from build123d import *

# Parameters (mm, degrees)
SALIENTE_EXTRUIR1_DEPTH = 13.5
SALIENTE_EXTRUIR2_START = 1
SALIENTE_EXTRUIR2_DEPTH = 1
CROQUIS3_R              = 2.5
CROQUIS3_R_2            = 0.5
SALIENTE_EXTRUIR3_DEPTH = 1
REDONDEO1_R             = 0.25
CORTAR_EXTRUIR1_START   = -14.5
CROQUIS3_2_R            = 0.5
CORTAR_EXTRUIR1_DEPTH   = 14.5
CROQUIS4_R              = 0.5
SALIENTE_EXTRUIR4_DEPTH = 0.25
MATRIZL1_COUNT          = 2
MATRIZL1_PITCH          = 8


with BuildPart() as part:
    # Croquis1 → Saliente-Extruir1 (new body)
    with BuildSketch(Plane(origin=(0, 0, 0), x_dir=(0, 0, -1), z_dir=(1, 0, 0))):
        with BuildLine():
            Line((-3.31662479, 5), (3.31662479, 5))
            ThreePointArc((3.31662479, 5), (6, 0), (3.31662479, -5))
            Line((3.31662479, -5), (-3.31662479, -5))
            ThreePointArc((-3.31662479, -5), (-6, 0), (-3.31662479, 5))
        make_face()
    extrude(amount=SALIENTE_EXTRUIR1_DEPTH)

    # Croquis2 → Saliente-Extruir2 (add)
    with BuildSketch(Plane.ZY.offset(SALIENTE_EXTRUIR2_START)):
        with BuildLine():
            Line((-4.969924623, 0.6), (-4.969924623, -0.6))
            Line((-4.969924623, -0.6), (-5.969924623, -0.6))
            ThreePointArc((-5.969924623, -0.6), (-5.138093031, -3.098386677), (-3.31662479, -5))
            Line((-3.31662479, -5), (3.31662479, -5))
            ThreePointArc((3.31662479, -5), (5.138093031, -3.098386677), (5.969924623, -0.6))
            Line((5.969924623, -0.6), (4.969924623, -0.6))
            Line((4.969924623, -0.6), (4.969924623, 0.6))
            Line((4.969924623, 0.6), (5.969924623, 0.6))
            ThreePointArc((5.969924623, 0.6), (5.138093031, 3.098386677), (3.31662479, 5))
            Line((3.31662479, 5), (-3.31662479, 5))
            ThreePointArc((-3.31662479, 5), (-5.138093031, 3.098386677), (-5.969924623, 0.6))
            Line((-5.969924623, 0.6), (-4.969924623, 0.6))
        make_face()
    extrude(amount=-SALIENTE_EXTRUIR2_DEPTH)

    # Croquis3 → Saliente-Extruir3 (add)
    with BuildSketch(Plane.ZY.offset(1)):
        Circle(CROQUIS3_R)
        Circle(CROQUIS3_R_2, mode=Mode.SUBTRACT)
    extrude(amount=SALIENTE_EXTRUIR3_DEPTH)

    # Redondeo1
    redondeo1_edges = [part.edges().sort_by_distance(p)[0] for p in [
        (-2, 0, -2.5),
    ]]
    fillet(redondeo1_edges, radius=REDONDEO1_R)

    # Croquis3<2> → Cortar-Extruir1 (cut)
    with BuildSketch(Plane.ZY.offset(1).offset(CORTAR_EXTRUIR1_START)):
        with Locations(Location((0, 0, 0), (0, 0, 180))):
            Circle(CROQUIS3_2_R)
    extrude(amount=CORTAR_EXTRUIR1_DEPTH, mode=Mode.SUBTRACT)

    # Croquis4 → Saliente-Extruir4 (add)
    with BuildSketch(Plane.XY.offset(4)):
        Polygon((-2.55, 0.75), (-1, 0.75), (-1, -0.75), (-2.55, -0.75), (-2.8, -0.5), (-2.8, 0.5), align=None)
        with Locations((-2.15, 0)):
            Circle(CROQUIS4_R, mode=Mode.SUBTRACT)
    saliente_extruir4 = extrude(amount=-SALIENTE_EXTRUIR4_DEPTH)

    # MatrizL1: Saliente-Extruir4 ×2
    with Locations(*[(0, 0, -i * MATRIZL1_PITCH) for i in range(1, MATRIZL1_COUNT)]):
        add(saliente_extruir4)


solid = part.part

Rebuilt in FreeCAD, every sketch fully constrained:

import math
import FreeCAD as App
import Part
import Sketcher

V = App.Vector
Q = App.Units.Quantity


def edges_at(feature, points):
    """Names of the edges that pass closest to the given points."""
    edges = feature.Shape.Edges
    near = lambda p: min(range(len(edges)), key=lambda i: edges[i].distToShape(Part.Vertex(*p))[0])
    return sorted({f"Edge{near(p) + 1}" for p in points})

doc = App.newDocument("Part")
body = doc.addObject("PartDesign::Body", "Body")

sketch1 = doc.addObject("Sketcher::SketchObject", "Sketch")
body.addObject(sketch1)
sketch1.AttachmentSupport = (doc.YZ_Plane, [""])
sketch1.MapMode = "FlatFace"
sketch1.addGeometry(Part.LineSegment(V(5, -3, 0), V(5, 3, 0)), False)
sketch1.addGeometry(Part.ArcOfCircle(Part.Circle(V(0, 0, 0), V(0, 0, 1), 6), math.radians(34), math.radians(146)), False)
sketch1.addGeometry(Part.LineSegment(V(-5, 3, 0), V(-5, -3, 0)), False)
sketch1.addGeometry(Part.ArcOfCircle(Part.Circle(V(0, 0, 0), V(0, 0, 1), 6), math.radians(-146), math.radians(-34)), False)
sketch1.addConstraint(Sketcher.Constraint("Coincident", 0, 2, 1, 1))
sketch1.addConstraint(Sketcher.Constraint("Coincident", 1, 2, 2, 1))
sketch1.addConstraint(Sketcher.Constraint("Coincident", 2, 2, 3, 1))
sketch1.addConstraint(Sketcher.Constraint("Coincident", 3, 2, 0, 1))
sketch1.addConstraint(Sketcher.Constraint("Vertical", 0))
sketch1.addConstraint(Sketcher.Constraint("Vertical", 2))
sketch1.addConstraint(Sketcher.Constraint("Coincident", 1, 3, -1, 1))
sketch1.addConstraint(Sketcher.Constraint("Coincident", 3, 3, -1, 1))
sketch1.addConstraint(Sketcher.Constraint("Equal", 1, 3))
sketch1.addConstraint(Sketcher.Constraint("Horizontal", 0, 2, 1, 2))
sketch1.addConstraint(Sketcher.Constraint("Radius", 1, Q("6 mm")))
sketch1.addConstraint(Sketcher.Constraint("DistanceX", -1, 1, 0, 2, Q("5 mm")))
pad1 = doc.addObject("PartDesign::Pad", "Pad")
body.addObject(pad1)
pad1.Profile = sketch1
pad1.Length = 13.5

sketch2 = doc.addObject("Sketcher::SketchObject", "Sketch001")
body.addObject(sketch2)
sketch2.AttachmentSupport = (doc.YZ_Plane, [""])
sketch2.MapMode = "FlatFace"
sketch2.AttachmentOffset = App.Placement(V(0, 0, -1), App.Rotation())
sketch2.addGeometry(Part.LineSegment(V(0.6, -5, 0), V(-0.6, -5, 0)), False)
sketch2.addGeometry(Part.LineSegment(V(-0.6, -5, 0), V(-0.6, -6, 0)), False)
sketch2.addGeometry(Part.ArcOfCircle(Part.Circle(V(0, 0, 0), V(0, 0, 1), 6), math.radians(-146), math.radians(-96)), False)
sketch2.addGeometry(Part.LineSegment(V(-5, -3.3, 0), V(-5, 3.3, 0)), False)
sketch2.addGeometry(Part.ArcOfCircle(Part.Circle(V(0, 0, 0), V(0, 0, 1), 6), math.radians(96), math.radians(146)), False)
sketch2.addGeometry(Part.LineSegment(V(-0.6, 6, 0), V(-0.6, 5, 0)), False)
sketch2.addGeometry(Part.LineSegment(V(-0.6, 5, 0), V(0.6, 5, 0)), False)
sketch2.addGeometry(Part.LineSegment(V(0.6, 5, 0), V(0.6, 6, 0)), False)
sketch2.addGeometry(Part.ArcOfCircle(Part.Circle(V(0, 0, 0), V(0, 0, 1), 6), math.radians(34), math.radians(84)), False)
sketch2.addGeometry(Part.LineSegment(V(5, 3.3, 0), V(5, -3.3, 0)), False)
sketch2.addGeometry(Part.ArcOfCircle(Part.Circle(V(0, 0, 0), V(0, 0, 1), 6), math.radians(-84), math.radians(-34)), False)
sketch2.addGeometry(Part.LineSegment(V(0.6, -6, 0), V(0.6, -5, 0)), False)
sketch2.addConstraint(Sketcher.Constraint("Coincident", 0, 2, 1, 1))
sketch2.addConstraint(Sketcher.Constraint("Coincident", 1, 2, 2, 2))
sketch2.addConstraint(Sketcher.Constraint("Coincident", 2, 1, 3, 1))
sketch2.addConstraint(Sketcher.Constraint("Coincident", 3, 2, 4, 2))
sketch2.addConstraint(Sketcher.Constraint("Coincident", 4, 1, 5, 1))
sketch2.addConstraint(Sketcher.Constraint("Coincident", 5, 2, 6, 1))
sketch2.addConstraint(Sketcher.Constraint("Coincident", 6, 2, 7, 1))
sketch2.addConstraint(Sketcher.Constraint("Coincident", 7, 2, 8, 2))
sketch2.addConstraint(Sketcher.Constraint("Coincident", 8, 1, 9, 1))
sketch2.addConstraint(Sketcher.Constraint("Coincident", 9, 2, 10, 2))
sketch2.addConstraint(Sketcher.Constraint("Coincident", 10, 1, 11, 1))
sketch2.addConstraint(Sketcher.Constraint("Coincident", 11, 2, 0, 1))
sketch2.addConstraint(Sketcher.Constraint("Horizontal", 0))
sketch2.addConstraint(Sketcher.Constraint("Vertical", 1))
sketch2.addConstraint(Sketcher.Constraint("Vertical", 3))
sketch2.addConstraint(Sketcher.Constraint("Vertical", 5))
sketch2.addConstraint(Sketcher.Constraint("Horizontal", 6))
sketch2.addConstraint(Sketcher.Constraint("Vertical", 7))
sketch2.addConstraint(Sketcher.Constraint("Vertical", 9))
sketch2.addConstraint(Sketcher.Constraint("Vertical", 11))
sketch2.addConstraint(Sketcher.Constraint("Coincident", 2, 3, -1, 1))
sketch2.addConstraint(Sketcher.Constraint("Coincident", 4, 3, -1, 1))
sketch2.addConstraint(Sketcher.Constraint("Coincident", 8, 3, -1, 1))
sketch2.addConstraint(Sketcher.Constraint("Coincident", 10, 3, -1, 1))
sketch2.addConstraint(Sketcher.Constraint("Equal", 2, 4))
sketch2.addConstraint(Sketcher.Constraint("Equal", 4, 8))
sketch2.addConstraint(Sketcher.Constraint("Equal", 8, 10))
sketch2.addConstraint(Sketcher.Constraint("Symmetric", 0, 2, 6, 2, -1, 1))
sketch2.addConstraint(Sketcher.Constraint("Horizontal", 4, 1, 7, 2))
sketch2.addConstraint(Sketcher.Constraint("Horizontal", 3, 2, 8, 1))
sketch2.addConstraint(Sketcher.Constraint("Horizontal", 1, 2, 10, 1))
sketch2.addConstraint(Sketcher.Constraint("Radius", 2, Q("6 mm")))
sketch2.addConstraint(Sketcher.Constraint("DistanceY", 1, 2, 1, 1, Q("1 mm")))
sketch2.addConstraint(Sketcher.Constraint("DistanceX", 0, 2, 0, 1, Q("1.2 mm")))
sketch2.addConstraint(Sketcher.Constraint("DistanceX", 2, 1, -1, 1, Q("5 mm")))
pad2 = doc.addObject("PartDesign::Pad", "Pad001")
body.addObject(pad2)
pad2.Profile = sketch2
pad2.Length = 1

sketch3 = doc.addObject("Sketcher::SketchObject", "Sketch002")
body.addObject(sketch3)
sketch3.AttachmentSupport = (doc.YZ_Plane, [""])
sketch3.MapMode = "FlatFace"
sketch3.AttachmentOffset = App.Placement(V(0, 0, -1), App.Rotation())
sketch3.addGeometry(Part.Circle(V(0, 0, 0), V(0, 0, 1), 2.5), False)
sketch3.addGeometry(Part.Circle(V(0, 0, 0), V(0, 0, 1), 0.5), False)
sketch3.addConstraint(Sketcher.Constraint("Coincident", 0, 3, -1, 1))
sketch3.addConstraint(Sketcher.Constraint("Coincident", 1, 3, -1, 1))
sketch3.addConstraint(Sketcher.Constraint("Diameter", 0, Q("5 mm")))
sketch3.addConstraint(Sketcher.Constraint("Diameter", 1, Q("1 mm")))
pad3 = doc.addObject("PartDesign::Pad", "Pad002")
body.addObject(pad3)
pad3.Profile = sketch3
pad3.Length = 1
pad3.Reversed = True
doc.recompute()

fillet = doc.addObject("PartDesign::Fillet", "Fillet")
body.addObject(fillet)
fillet.Base = (pad3, edges_at(pad3, [(-2, 0, -2.5)]))
fillet.Radius = 0.25

sketch4 = doc.addObject("Sketcher::SketchObject", "Sketch003")
body.addObject(sketch4)
sketch4.AttachmentSupport = (doc.YZ_Plane, [""])
sketch4.MapMode = "FlatFace"
sketch4.AttachmentOffset = App.Placement(V(0, 0, 13.5), App.Rotation())
sketch4.addGeometry(Part.Circle(V(0, 0, 0), V(0, 0, 1), 0.5), False)
sketch4.addConstraint(Sketcher.Constraint("Coincident", 0, 3, -1, 1))
sketch4.addConstraint(Sketcher.Constraint("Diameter", 0, Q("1 mm")))
pocket1 = doc.addObject("PartDesign::Pocket", "Pocket")
body.addObject(pocket1)
pocket1.Profile = sketch4
pocket1.Length = 14.5

sketch5 = doc.addObject("Sketcher::SketchObject", "Sketch004")
body.addObject(sketch5)
sketch5.AttachmentSupport = (doc.XY_Plane, [""])
sketch5.MapMode = "FlatFace"
sketch5.AttachmentOffset = App.Placement(V(0, 0, 4), App.Rotation())
sketch5.addGeometry(Part.LineSegment(V(-1, 0.75, 0), V(-2.55, 0.75, 0)), False)
sketch5.addGeometry(Part.LineSegment(V(-2.55, 0.75, 0), V(-2.8, 0.5, 0)), False)
sketch5.addGeometry(Part.LineSegment(V(-2.8, 0.5, 0), V(-2.8, -0.5, 0)), False)
sketch5.addGeometry(Part.LineSegment(V(-2.8, -0.5, 0), V(-2.55, -0.75, 0)), False)
sketch5.addGeometry(Part.LineSegment(V(-2.55, -0.75, 0), V(-1, -0.75, 0)), False)
sketch5.addGeometry(Part.LineSegment(V(-1, -0.75, 0), V(-1, 0.75, 0)), False)
sketch5.addGeometry(Part.Circle(V(-2.15, 0, 0), V(0, 0, 1), 0.5), False)
sketch5.addConstraint(Sketcher.Constraint("Coincident", 0, 2, 1, 1))
sketch5.addConstraint(Sketcher.Constraint("Coincident", 1, 2, 2, 1))
sketch5.addConstraint(Sketcher.Constraint("Coincident", 2, 2, 3, 1))
sketch5.addConstraint(Sketcher.Constraint("Coincident", 3, 2, 4, 1))
sketch5.addConstraint(Sketcher.Constraint("Coincident", 4, 2, 5, 1))
sketch5.addConstraint(Sketcher.Constraint("Coincident", 5, 2, 0, 1))
sketch5.addConstraint(Sketcher.Constraint("Horizontal", 0))
sketch5.addConstraint(Sketcher.Constraint("Vertical", 2))
sketch5.addConstraint(Sketcher.Constraint("Horizontal", 4))
sketch5.addConstraint(Sketcher.Constraint("Vertical", 5))
sketch5.addConstraint(Sketcher.Constraint("Symmetric", 0, 2, 3, 2, -1))
sketch5.addConstraint(Sketcher.Constraint("PointOnObject", 6, 3, -1))
sketch5.addConstraint(Sketcher.Constraint("Perpendicular", 1, 3))
sketch5.addConstraint(Sketcher.Constraint("Equal", 1, 3))
sketch5.addConstraint(Sketcher.Constraint("Diameter", 6, Q("1 mm")))
sketch5.addConstraint(Sketcher.Constraint("DistanceY", 2, 2, 2, 1, Q("1 mm")))
sketch5.addConstraint(Sketcher.Constraint("DistanceY", 5, 1, 5, 2, Q("1.5 mm")))
sketch5.addConstraint(Sketcher.Constraint("DistanceX", 4, 2, -1, 1, Q("1 mm")))
sketch5.addConstraint(Sketcher.Constraint("DistanceX", 0, 2, 0, 1, Q("1.55 mm")))
sketch5.addConstraint(Sketcher.Constraint("DistanceX", 0, 2, 6, 3, Q("0.4 mm")))
pad4 = doc.addObject("PartDesign::Pad", "Pad003")
body.addObject(pad4)
pad4.Profile = sketch5
pad4.Length = 0.25
pad4.Reversed = True
doc.recompute()

linearpattern = doc.addObject("PartDesign::LinearPattern", "LinearPattern")
body.addObject(linearpattern)
linearpattern.Originals = [pad4]
linearpattern.Direction = (doc.Z_Axis, [""])
linearpattern.Mode = "offset"
linearpattern.Offset = 8
linearpattern.Occurrences = 2
linearpattern.Reversed = True
body.Tip = linearpattern

doc.recompute()
